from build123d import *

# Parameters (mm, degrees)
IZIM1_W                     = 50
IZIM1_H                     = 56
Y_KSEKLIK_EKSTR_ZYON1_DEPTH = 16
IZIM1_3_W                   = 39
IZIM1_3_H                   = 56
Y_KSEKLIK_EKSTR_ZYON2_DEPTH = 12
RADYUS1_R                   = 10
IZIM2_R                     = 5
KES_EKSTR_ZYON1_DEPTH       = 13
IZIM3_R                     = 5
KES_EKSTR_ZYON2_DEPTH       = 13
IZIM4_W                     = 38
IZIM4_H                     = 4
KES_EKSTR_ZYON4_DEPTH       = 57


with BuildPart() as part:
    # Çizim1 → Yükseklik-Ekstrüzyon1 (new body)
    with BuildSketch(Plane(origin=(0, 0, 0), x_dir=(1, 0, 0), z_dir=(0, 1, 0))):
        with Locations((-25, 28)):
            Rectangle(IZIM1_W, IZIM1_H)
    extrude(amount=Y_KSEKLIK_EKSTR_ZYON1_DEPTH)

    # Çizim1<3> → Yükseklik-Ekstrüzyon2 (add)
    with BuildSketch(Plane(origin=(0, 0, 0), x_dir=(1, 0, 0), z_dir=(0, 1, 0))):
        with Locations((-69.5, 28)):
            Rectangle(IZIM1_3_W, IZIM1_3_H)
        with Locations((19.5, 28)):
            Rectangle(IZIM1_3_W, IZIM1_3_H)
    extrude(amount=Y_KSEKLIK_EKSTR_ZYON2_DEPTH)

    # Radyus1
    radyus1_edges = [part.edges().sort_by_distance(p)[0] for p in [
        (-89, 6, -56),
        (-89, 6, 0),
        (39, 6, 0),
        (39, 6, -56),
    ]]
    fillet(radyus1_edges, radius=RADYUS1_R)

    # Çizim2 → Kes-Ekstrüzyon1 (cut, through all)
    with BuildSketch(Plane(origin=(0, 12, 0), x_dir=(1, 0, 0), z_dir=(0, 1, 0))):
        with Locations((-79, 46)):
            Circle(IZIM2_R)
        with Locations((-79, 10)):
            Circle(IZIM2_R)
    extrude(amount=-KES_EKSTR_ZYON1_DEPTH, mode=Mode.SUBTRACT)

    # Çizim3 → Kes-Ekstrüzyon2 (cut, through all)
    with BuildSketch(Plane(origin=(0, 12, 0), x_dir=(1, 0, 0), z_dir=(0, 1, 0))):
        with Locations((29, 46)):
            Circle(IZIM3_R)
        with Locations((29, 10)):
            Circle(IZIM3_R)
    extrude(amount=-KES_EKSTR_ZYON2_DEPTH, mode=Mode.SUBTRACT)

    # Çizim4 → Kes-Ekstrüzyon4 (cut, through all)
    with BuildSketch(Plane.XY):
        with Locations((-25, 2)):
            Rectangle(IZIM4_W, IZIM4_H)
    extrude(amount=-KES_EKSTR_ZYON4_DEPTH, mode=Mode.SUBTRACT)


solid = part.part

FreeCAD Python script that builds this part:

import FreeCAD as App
import Part
import Sketcher
from FreeCAD import Vector
Q = App.Units.Quantity


def edges_at(feature, points):
    """Names of the edges that pass closest to the given points."""
    edges = feature.Shape.Edges
    near = lambda p: min(range(len(edges)), key=lambda i: edges[i].distToShape(Part.Vertex(*p))[0])
    return sorted({f"Edge{near(p) + 1}" for p in points})

doc = App.newDocument("Part")
body = doc.addObject("PartDesign::Body", "Body")

# Sketch on XZ plane
sketch1 = body.newObject("Sketcher::SketchObject", "Sketch")
sketch1.AttachmentSupport = (doc.getObject("XZ_Plane"), [""])
sketch1.MapMode = "FlatFace"
sketch1.addGeometry(Part.LineSegment(Vector(-50, -56, 0), Vector(-50, 0, 0)), False)
sketch1.addGeometry(Part.LineSegment(Vector(-50, 0, 0), Vector(0, 0, 0)), False)
sketch1.addGeometry(Part.LineSegment(Vector(0, 0, 0), Vector(0, -56, 0)), False)
sketch1.addGeometry(Part.LineSegment(Vector(0, -56, 0), Vector(-50, -56, 0)), False)
sketch1.addConstraint(Sketcher.Constraint("Coincident", 0, 2, 1, 1))
sketch1.addConstraint(Sketcher.Constraint("Coincident", 1, 2, 2, 1))
sketch1.addConstraint(Sketcher.Constraint("Coincident", 2, 2, 3, 1))
sketch1.addConstraint(Sketcher.Constraint("Coincident", 3, 2, 0, 1))
sketch1.addConstraint(Sketcher.Constraint("Vertical", 0))
sketch1.addConstraint(Sketcher.Constraint("Horizontal", 1))
sketch1.addConstraint(Sketcher.Constraint("Vertical", 2))
sketch1.addConstraint(Sketcher.Constraint("Horizontal", 3))
sketch1.addConstraint(Sketcher.Constraint("Coincident", 1, 2, -1, 1))
sketch1.addConstraint(Sketcher.Constraint("DistanceX", 1, 1, 1, 2, Q("50 mm")))
sketch1.addConstraint(Sketcher.Constraint("DistanceY", 0, 1, 0, 2, Q("56 mm")))
pad1 = body.newObject("PartDesign::Pad", "Pad")
pad1.Profile = sketch1
pad1.Length = 16
pad1.Reversed = True

# Sketch on XZ plane
sketch2 = body.newObject("Sketcher::SketchObject", "Sketch001")
sketch2.AttachmentSupport = (doc.getObject("XZ_Plane"), [""])
sketch2.MapMode = "FlatFace"
sketch2.addGeometry(Part.LineSegment(Vector(-89, -56, 0), Vector(-89, 0, 0)), False)
sketch2.addGeometry(Part.LineSegment(Vector(-89, 0, 0), Vector(-50, 0, 0)), False)
sketch2.addGeometry(Part.LineSegment(Vector(-50, 0, 0), Vector(-50, -56, 0)), False)
sketch2.addGeometry(Part.LineSegment(Vector(-50, -56, 0), Vector(-89, -56, 0)), False)
sketch2.addGeometry(Part.LineSegment(Vector(0, -56, 0), Vector(0, 0, 0)), False)
sketch2.addGeometry(Part.LineSegment(Vector(0, 0, 0), Vector(39, 0, 0)), False)
sketch2.addGeometry(Part.LineSegment(Vector(39, 0, 0), Vector(39, -56, 0)), False)
sketch2.addGeometry(Part.LineSegment(Vector(39, -56, 0), Vector(0, -56, 0)), False)
sketch2.addConstraint(Sketcher.Constraint("Coincident", 0, 2, 1, 1))
sketch2.addConstraint(Sketcher.Constraint("Coincident", 1, 2, 2, 1))
sketch2.addConstraint(Sketcher.Constraint("Coincident", 2, 2, 3, 1))
sketch2.addConstraint(Sketcher.Constraint("Coincident", 3, 2, 0, 1))
sketch2.addConstraint(Sketcher.Constraint("Coincident", 4, 2, 5, 1))
sketch2.addConstraint(Sketcher.Constraint("Coincident", 5, 2, 6, 1))
sketch2.addConstraint(Sketcher.Constraint("Coincident", 6, 2, 7, 1))
sketch2.addConstraint(Sketcher.Constraint("Coincident", 7, 2, 4, 1))
sketch2.addConstraint(Sketcher.Constraint("Vertical", 0))
sketch2.addConstraint(Sketcher.Constraint("Horizontal", 1))
sketch2.addConstraint(Sketcher.Constraint("Vertical", 2))
sketch2.addConstraint(Sketcher.Constraint("Horizontal", 3))
sketch2.addConstraint(Sketcher.Constraint("Vertical", 4))
sketch2.addConstraint(Sketcher.Constraint("Horizontal", 5))
sketch2.addConstraint(Sketcher.Constraint("Vertical", 6))
sketch2.addConstraint(Sketcher.Constraint("Horizontal", 7))
sketch2.addConstraint(Sketcher.Constraint("Coincident", 4, 2, -1, 1))
sketch2.addConstraint(Sketcher.Constraint("PointOnObject", 0, 2, -1))
sketch2.addConstraint(Sketcher.Constraint("Horizontal", 3, 2, 6, 2))
sketch2.addConstraint(Sketcher.Constraint("Equal", 3, 5))
sketch2.addConstraint(Sketcher.Constraint("DistanceX", 1, 1, 1, 2, Q("39 mm")))
sketch2.addConstraint(Sketcher.Constraint("DistanceY", 0, 1, 0, 2, Q("56 mm")))
sketch2.addConstraint(Sketcher.Constraint("DistanceX", 0, 2, -1, 1, Q("89 mm")))
pad2 = body.newObject("PartDesign::Pad", "Pad001")
pad2.Profile = sketch2
pad2.Length = 12
pad2.Reversed = True
doc.recompute()

fillet = body.newObject("PartDesign::Fillet", "Fillet")
fillet.Base = (pad2, edges_at(pad2, [
    (-89, 6, -56),
    (-89, 6, 0),
    (39, 6, 0),
    (39, 6, -56),
]))
fillet.Radius = 10

# Sketch on XZ plane
sketch3 = body.newObject("Sketcher::SketchObject", "Sketch002")
sketch3.AttachmentSupport = (doc.getObject("XZ_Plane"), [""])
sketch3.MapMode = "FlatFace"
sketch3.AttachmentOffset = App.Placement(Vector(0, 0, -12), App.Rotation())
sketch3.addGeometry(Part.Circle(Vector(-79, -46, 0), Vector(0, 0, 1), 5), False)
sketch3.addGeometry(Part.Circle(Vector(-79, -10, 0), Vector(0, 0, 1), 5), False)
sketch3.addConstraint(Sketcher.Constraint("Equal", 0, 1))
sketch3.addConstraint(Sketcher.Constraint("Vertical", 0, 3, 1, 3))
sketch3.addConstraint(Sketcher.Constraint("Diameter", 0, Q("10 mm")))
sketch3.addConstraint(Sketcher.Constraint("DistanceX", 0, 3, -1, 1, Q("79 mm")))
sketch3.addConstraint(Sketcher.Constraint("DistanceY", 0, 3, -1, 1, Q("46 mm")))
sketch3.addConstraint(Sketcher.Constraint("DistanceY", 1, 3, -1, 1, Q("10 mm")))
pocket1 = body.newObject("PartDesign::Pocket", "Pocket")
pocket1.Profile = sketch3
pocket1.Type = "ThroughAll"
pocket1.Reversed = True

# Sketch on XZ plane
sketch4 = body.newObject("Sketcher::SketchObject", "Sketch003")
sketch4.AttachmentSupport = (doc.getObject("XZ_Plane"), [""])
sketch4.MapMode = "FlatFace"
sketch4.AttachmentOffset = App.Placement(Vector(0, 0, -12), App.Rotation())
sketch4.addGeometry(Part.Circle(Vector(29, -46, 0), Vector(0, 0, 1), 5), False)
sketch4.addGeometry(Part.Circle(Vector(29, -10, 0), Vector(0, 0, 1), 5), False)
sketch4.addConstraint(Sketcher.Constraint("Equal", 0, 1))
sketch4.addConstraint(Sketcher.Constraint("Vertical", 0, 3, 1, 3))
sketch4.addConstraint(Sketcher.Constraint("Diameter", 0, Q("10 mm")))
sketch4.addConstraint(Sketcher.Constraint("DistanceX", -1, 1, 0, 3, Q("29 mm")))
sketch4.addConstraint(Sketcher.Constraint("DistanceY", 0, 3, -1, 1, Q("46 mm")))
sketch4.addConstraint(Sketcher.Constraint("DistanceY", 1, 3, -1, 1, Q("10 mm")))
pocket2 = body.newObject("PartDesign::Pocket", "Pocket001")
pocket2.Profile = sketch4
pocket2.Type = "ThroughAll"
pocket2.Reversed = True

# Sketch on XY plane
sketch5 = body.newObject("Sketcher::SketchObject", "Sketch004")
sketch5.AttachmentSupport = (doc.getObject("XY_Plane"), [""])
sketch5.MapMode = "FlatFace"
sketch5.addGeometry(Part.LineSegment(Vector(-44, 4, 0), Vector(-44, 0, 0)), False)
sketch5.addGeometry(Part.LineSegment(Vector(-44, 0, 0), Vector(-6, 0, 0)), False)
sketch5.addGeometry(Part.LineSegment(Vector(-6, 0, 0), Vector(-6, 4, 0)), False)
sketch5.addGeometry(Part.LineSegment(Vector(-6, 4, 0), Vector(-44, 4, 0)), False)
sketch5.addConstraint(Sketcher.Constraint("Coincident", 0, 2, 1, 1))
sketch5.addConstraint(Sketcher.Constraint("Coincident", 1, 2, 2, 1))
sketch5.addConstraint(Sketcher.Constraint("Coincident", 2, 2, 3, 1))
sketch5.addConstraint(Sketcher.Constraint("Coincident", 3, 2, 0, 1))
sketch5.addConstraint(Sketcher.Constraint("Vertical", 0))
sketch5.addConstraint(Sketcher.Constraint("Horizontal", 1))
sketch5.addConstraint(Sketcher.Constraint("Vertical", 2))
sketch5.addConstraint(Sketcher.Constraint("Horizontal", 3))
sketch5.addConstraint(Sketcher.Constraint("PointOnObject", 0, 2, -1))
sketch5.addConstraint(Sketcher.Constraint("DistanceX", 1, 1, 1, 2, Q("38 mm")))
sketch5.addConstraint(Sketcher.Constraint("DistanceY", 0, 2, 0, 1, Q("4 mm")))
sketch5.addConstraint(Sketcher.Constraint("DistanceX", 0, 2, -1, 1, Q("44 mm")))
pocket3 = body.newObject("PartDesign::Pocket", "Pocket002")
pocket3.Profile = sketch5
pocket3.Type = "ThroughAll"

doc.recompute()
